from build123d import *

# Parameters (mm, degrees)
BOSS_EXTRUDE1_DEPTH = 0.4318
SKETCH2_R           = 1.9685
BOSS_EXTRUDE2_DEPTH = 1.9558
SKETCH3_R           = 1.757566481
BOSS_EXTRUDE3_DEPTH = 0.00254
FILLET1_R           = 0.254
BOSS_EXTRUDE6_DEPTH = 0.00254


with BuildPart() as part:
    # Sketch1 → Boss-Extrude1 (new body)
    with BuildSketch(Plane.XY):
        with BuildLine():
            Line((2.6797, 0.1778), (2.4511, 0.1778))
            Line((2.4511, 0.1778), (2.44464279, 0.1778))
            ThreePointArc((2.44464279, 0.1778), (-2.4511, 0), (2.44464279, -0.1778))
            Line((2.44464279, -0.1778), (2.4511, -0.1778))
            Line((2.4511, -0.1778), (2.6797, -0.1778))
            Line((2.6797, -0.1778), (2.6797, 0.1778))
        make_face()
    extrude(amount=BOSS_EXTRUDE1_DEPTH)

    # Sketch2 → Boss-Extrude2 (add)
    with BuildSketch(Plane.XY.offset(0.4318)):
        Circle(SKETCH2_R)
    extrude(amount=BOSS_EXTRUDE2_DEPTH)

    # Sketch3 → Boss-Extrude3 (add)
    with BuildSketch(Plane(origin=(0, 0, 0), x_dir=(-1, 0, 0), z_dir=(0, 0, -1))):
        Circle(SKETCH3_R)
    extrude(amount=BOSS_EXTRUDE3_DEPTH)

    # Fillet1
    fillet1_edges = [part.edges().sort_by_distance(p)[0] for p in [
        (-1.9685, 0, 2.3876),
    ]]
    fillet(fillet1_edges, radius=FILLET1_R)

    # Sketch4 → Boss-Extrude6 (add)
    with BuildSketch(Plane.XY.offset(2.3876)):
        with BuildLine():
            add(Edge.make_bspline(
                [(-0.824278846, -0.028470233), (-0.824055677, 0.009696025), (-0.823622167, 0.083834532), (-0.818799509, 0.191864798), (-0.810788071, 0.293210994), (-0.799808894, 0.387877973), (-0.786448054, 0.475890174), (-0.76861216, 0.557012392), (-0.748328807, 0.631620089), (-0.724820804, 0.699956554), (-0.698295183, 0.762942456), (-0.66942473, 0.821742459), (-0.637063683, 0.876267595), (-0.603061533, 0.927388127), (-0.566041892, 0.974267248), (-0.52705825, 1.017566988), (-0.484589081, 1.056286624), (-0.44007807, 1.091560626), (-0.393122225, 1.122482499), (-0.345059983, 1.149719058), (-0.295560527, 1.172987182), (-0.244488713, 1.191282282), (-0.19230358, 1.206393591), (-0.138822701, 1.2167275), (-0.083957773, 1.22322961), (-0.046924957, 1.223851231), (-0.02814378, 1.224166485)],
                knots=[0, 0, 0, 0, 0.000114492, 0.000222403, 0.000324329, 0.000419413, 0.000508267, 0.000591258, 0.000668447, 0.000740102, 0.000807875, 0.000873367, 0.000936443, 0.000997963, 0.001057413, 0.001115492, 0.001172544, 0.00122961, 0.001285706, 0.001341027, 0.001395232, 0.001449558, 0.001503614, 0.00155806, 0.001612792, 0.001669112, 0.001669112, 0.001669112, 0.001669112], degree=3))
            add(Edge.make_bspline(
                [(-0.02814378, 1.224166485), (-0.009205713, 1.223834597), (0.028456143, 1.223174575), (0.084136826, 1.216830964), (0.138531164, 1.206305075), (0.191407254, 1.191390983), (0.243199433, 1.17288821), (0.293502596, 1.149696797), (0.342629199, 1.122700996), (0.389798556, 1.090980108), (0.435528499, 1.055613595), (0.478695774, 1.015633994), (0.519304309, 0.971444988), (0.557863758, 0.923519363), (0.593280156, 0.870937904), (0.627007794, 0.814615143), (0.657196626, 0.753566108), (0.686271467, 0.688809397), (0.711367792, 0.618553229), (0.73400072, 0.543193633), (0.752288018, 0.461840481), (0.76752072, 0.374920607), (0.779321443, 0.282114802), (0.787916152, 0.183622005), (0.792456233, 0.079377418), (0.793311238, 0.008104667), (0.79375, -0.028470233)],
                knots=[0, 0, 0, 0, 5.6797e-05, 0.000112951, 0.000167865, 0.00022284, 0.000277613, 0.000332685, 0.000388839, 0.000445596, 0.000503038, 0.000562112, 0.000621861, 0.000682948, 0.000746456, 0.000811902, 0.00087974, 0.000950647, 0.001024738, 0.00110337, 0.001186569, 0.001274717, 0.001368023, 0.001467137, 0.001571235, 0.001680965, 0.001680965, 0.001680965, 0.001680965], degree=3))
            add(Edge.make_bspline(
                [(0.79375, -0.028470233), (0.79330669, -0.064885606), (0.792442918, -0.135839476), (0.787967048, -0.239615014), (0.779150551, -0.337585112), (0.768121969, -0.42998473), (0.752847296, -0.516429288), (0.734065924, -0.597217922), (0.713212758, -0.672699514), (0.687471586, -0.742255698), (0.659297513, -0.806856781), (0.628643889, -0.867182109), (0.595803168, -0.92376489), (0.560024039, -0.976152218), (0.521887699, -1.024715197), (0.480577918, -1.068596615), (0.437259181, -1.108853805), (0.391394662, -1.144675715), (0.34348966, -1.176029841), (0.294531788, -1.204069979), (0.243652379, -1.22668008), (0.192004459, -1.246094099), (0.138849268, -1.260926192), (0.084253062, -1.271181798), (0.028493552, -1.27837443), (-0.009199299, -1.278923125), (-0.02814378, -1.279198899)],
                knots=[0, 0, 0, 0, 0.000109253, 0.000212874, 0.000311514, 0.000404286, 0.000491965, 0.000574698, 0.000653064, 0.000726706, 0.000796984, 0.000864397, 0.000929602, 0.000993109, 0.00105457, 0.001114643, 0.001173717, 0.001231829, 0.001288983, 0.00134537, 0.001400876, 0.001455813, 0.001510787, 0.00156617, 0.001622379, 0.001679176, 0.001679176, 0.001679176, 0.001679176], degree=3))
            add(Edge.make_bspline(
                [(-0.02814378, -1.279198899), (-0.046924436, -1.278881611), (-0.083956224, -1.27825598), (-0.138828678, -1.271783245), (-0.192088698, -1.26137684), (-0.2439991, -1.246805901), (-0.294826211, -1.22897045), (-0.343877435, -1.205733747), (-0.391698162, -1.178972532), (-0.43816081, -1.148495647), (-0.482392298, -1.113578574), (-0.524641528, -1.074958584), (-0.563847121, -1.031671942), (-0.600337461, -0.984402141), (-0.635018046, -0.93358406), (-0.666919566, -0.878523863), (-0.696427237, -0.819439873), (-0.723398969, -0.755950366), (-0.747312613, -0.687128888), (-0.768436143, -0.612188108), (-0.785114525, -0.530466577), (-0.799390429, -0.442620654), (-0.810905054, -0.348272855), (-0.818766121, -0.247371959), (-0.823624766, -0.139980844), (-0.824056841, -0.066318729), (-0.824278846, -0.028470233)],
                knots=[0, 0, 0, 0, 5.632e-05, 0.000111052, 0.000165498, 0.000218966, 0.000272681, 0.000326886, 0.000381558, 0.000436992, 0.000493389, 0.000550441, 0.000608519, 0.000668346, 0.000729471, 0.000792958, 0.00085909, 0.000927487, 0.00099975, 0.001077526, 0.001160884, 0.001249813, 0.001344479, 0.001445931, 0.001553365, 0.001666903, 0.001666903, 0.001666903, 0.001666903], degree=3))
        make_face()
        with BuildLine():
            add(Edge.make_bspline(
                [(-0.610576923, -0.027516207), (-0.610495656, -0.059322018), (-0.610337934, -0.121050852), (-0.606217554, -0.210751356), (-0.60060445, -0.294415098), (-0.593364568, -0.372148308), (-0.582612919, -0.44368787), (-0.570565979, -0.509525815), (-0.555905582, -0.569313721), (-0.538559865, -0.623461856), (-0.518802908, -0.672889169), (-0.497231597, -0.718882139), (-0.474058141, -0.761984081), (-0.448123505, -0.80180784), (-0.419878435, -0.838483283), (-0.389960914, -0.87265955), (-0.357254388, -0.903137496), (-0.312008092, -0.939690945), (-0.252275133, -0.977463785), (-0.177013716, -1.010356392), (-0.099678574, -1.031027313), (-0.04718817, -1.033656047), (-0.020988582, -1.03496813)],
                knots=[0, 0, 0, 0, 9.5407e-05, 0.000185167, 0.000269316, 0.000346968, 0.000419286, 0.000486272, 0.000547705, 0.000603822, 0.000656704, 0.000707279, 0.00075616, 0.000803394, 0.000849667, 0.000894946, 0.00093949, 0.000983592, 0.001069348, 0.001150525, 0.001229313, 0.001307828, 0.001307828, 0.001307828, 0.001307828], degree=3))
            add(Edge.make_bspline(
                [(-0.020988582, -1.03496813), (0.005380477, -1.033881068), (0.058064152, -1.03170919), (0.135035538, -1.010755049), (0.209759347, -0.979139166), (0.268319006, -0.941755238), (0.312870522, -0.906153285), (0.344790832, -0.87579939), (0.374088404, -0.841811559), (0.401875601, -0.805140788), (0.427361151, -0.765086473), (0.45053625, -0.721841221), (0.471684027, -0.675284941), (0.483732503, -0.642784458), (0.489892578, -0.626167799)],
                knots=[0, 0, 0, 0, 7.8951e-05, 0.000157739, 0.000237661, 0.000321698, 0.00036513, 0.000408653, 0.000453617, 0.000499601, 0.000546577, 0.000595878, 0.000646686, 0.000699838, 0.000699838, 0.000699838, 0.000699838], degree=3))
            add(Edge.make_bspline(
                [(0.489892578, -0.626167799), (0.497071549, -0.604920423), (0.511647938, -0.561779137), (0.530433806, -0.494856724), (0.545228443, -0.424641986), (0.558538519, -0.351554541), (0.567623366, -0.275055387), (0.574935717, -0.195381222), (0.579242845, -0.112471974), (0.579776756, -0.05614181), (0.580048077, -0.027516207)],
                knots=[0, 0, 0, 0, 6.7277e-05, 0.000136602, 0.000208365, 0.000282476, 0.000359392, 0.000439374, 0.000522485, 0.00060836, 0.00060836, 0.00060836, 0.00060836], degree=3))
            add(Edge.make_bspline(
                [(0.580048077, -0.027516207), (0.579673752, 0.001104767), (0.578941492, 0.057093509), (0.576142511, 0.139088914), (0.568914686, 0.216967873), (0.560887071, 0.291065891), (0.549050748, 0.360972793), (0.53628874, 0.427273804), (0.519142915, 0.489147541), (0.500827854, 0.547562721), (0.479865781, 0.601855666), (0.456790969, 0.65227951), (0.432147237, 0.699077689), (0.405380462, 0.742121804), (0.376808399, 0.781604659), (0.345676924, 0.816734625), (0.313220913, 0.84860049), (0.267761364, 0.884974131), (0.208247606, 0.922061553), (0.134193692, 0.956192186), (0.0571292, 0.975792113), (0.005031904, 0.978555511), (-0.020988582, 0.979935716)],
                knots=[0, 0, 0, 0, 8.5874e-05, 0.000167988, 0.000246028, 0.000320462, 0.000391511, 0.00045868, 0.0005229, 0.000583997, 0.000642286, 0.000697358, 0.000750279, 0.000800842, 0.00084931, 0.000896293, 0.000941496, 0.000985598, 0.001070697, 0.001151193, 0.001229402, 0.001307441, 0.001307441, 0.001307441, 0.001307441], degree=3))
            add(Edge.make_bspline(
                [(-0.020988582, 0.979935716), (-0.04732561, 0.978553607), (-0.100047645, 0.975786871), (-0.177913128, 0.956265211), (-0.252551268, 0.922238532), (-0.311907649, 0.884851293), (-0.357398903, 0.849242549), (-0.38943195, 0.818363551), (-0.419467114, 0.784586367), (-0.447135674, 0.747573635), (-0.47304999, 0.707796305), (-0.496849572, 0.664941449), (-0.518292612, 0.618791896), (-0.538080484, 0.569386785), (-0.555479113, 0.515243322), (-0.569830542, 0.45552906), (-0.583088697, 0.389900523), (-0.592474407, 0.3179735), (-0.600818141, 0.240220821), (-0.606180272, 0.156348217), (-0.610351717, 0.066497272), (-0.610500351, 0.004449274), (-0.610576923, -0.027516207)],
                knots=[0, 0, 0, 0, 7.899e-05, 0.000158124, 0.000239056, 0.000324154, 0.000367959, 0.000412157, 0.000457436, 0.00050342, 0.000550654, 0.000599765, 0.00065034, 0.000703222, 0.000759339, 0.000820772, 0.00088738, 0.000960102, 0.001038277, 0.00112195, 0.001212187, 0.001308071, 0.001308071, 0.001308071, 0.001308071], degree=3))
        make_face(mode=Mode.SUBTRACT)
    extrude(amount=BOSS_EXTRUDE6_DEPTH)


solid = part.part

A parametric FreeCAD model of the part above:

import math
import FreeCAD as App
import Part
import Sketcher
Q = App.Units.Quantity


def edges_at(feature, points):
    """Names of the edges that pass closest to the given points."""
    edges = feature.Shape.Edges
    near = lambda p: min(range(len(edges)), key=lambda i: edges[i].distToShape(Part.Vertex(*p))[0])
    return sorted({f"Edge{near(p) + 1}" for p in points})

doc = App.newDocument("Part")
params = doc.addObject("Spreadsheet::Sheet", "Params")
for row, (alias, value) in enumerate([
    ("sketch1_height", "0.014 in"),
    ("pad1_length", "0.017 in"),
    ("sketch2_diameter", "0.155 in"),
    ("pad2_length", "0.077 in"),
    ("pad3_length", "0.0001 in"),
    ("fillet_radius", "0.01 in"),
    ("pad4_length", "0.0001 in"),
], start=1):
    params.set(f"A{row}", alias)
    params.set(f"B{row}", "=" + value)
    params.setAlias(f"B{row}", alias)

body = doc.addObject("PartDesign::Body", "Body")

sketch1 = body.newObject("Sketcher::SketchObject", "Sketch")
sketch1.AttachmentSupport = (doc.getObject("XY_Plane"), [""])
sketch1.MapMode = "FlatFace"
sketch1.addGeometry(Part.LineSegment(App.Vector(2.68, 0.18, 0), App.Vector(2.44, 0.18, 0)), False)
sketch1.addGeometry(Part.ArcOfCircle(Part.Circle(App.Vector(0, 0, 0), App.Vector(0, 0, 1), 2.45), math.radians(4), math.radians(356)), False)
sketch1.addGeometry(Part.LineSegment(App.Vector(2.44, -0.18, 0), App.Vector(2.68, -0.18, 0)), False)
sketch1.addGeometry(Part.LineSegment(App.Vector(2.68, -0.18, 0), App.Vector(2.68, 0.18, 0)), False)
sketch1.addConstraint(Sketcher.Constraint("Coincident", 0, 2, 1, 1))
sketch1.addConstraint(Sketcher.Constraint("Coincident", 1, 2, 2, 1))
sketch1.addConstraint(Sketcher.Constraint("Coincident", 2, 2, 3, 1))
sketch1.addConstraint(Sketcher.Constraint("Coincident", 3, 2, 0, 1))
sketch1.addConstraint(Sketcher.Constraint("Horizontal", 0))
sketch1.addConstraint(Sketcher.Constraint("Horizontal", 2))
sketch1.addConstraint(Sketcher.Constraint("Vertical", 3))
sketch1.addConstraint(Sketcher.Constraint("Coincident", 1, 3, -1, 1))
sketch1.addConstraint(Sketcher.Constraint("Vertical", 0, 2, 1, 2))
sketch1.addConstraint(Sketcher.Constraint("Radius", 1, Q("0.0965 in")))
sketch1.addConstraint(Sketcher.Constraint("DistanceY", 3, 1, 3, 2, Q("0.014 in")))
sketch1.addConstraint(Sketcher.Constraint("DistanceX", -1, 1, 2, 2, Q("0.1055 in")))
sketch1.setExpression("Constraints[10]", "Params.sketch1_height")
pad1 = body.newObject("PartDesign::Pad", "Pad")
pad1.Profile = sketch1
pad1.setExpression("Length", "Params.pad1_length")

sketch2 = body.newObject("Sketcher::SketchObject", "Sketch001")
sketch2.AttachmentSupport = (doc.getObject("XY_Plane"), [""])
sketch2.MapMode = "FlatFace"
sketch2.AttachmentOffset = App.Placement(App.Vector(0, 0, 0.017 * 25.4), App.Rotation())
sketch2.addGeometry(Part.Circle(App.Vector(0, 0, 0), App.Vector(0, 0, 1), 2), False)
sketch2.addConstraint(Sketcher.Constraint("Coincident", 0, 3, -1, 1))
sketch2.addConstraint(Sketcher.Constraint("Diameter", 0, Q("0.155 in")))
sketch2.setExpression("Constraints[1]", "Params.sketch2_diameter")
pad2 = body.newObject("PartDesign::Pad", "Pad001")
pad2.Profile = sketch2
pad2.setExpression("Length", "Params.pad2_length")

sketch3 = body.newObject("Sketcher::SketchObject", "Sketch002")
sketch3.AttachmentSupport = (doc.getObject("XY_Plane"), [""])
sketch3.MapMode = "FlatFace"
sketch3.addGeometry(Part.Circle(App.Vector(0, 0, 0), App.Vector(0, 0, 1), 1.8), False)
sketch3.addConstraint(Sketcher.Constraint("Coincident", 0, 3, -1, 1))
sketch3.addConstraint(Sketcher.Constraint("Diameter", 0, Q("3.515133 mm")))
pad3 = body.newObject("PartDesign::Pad", "Pad002")
pad3.Profile = sketch3
pad3.setExpression("Length", "Params.pad3_length")
pad3.Reversed = True
doc.recompute()

fillet = body.newObject("PartDesign::Fillet", "Fillet")
fillet.Base = (pad3, edges_at(pad3, [(-1.968, 0, 2.388)]))
fillet.setExpression("Radius", "Params.fillet_radius")

sketch4 = body.newObject("Sketcher::SketchObject", "Sketch003")
sketch4.AttachmentSupport = (doc.getObject("XY_Plane"), [""])
sketch4.MapMode = "FlatFace"
sketch4.AttachmentOffset = App.Placement(App.Vector(0, 0, 0.094 * 25.4), App.Rotation())
sketch4.addGeometry(Part.BSplineCurve([App.Vector(-0.824279, -0.02847, 0), App.Vector(-0.824056, 0.009696, 0), App.Vector(-0.823622, 0.083835, 0), App.Vector(-0.8188, 0.191865, 0), App.Vector(-0.810788, 0.293211, 0), App.Vector(-0.799809, 0.387878, 0), App.Vector(-0.786448, 0.47589, 0), App.Vector(-0.768612, 0.557012, 0), App.Vector(-0.748329, 0.63162, 0), App.Vector(-0.724821, 0.699957, 0), App.Vector(-0.698295, 0.762942, 0), App.Vector(-0.669425, 0.821742, 0), App.Vector(-0.637064, 0.876268, 0), App.Vector(-0.603062, 0.927388, 0), App.Vector(-0.566042, 0.974267, 0), App.Vector(-0.527058, 1.017567, 0), App.Vector(-0.484589, 1.056287, 0), App.Vector(-0.440078, 1.091561, 0), App.Vector(-0.393122, 1.122482, 0), App.Vector(-0.34506, 1.149719, 0), App.Vector(-0.295561, 1.172987, 0), App.Vector(-0.244489, 1.191282, 0), App.Vector(-0.192304, 1.206394, 0), App.Vector(-0.138823, 1.216727, 0), App.Vector(-0.083958, 1.22323, 0), App.Vector(-0.046925, 1.223851, 0), App.Vector(-0.028144, 1.224166, 0)], [4, 1, 1, 1, 1, 1, 1, 1, 1, 1, 1, 1, 1, 1, 1, 1, 1, 1, 1, 1, 1, 1, 1, 1, 4], [0, 0.000114492, 0.000222403, 0.000324329, 0.000419413, 0.000508267, 0.000591258, 0.000668447, 0.000740102, 0.000807875, 0.000873367, 0.000936443, 0.000997963, 0.001057413, 0.001115492, 0.001172544, 0.00122961, 0.001285706, 0.001341027, 0.001395232, 0.001449558, 0.001503614, 0.00155806, 0.001612792, 0.001669112], False, 3, [1, 1, 1, 1, 1, 1, 1, 1, 1, 1, 1, 1, 1, 1, 1, 1, 1, 1, 1, 1, 1, 1, 1, 1, 1, 1, 1], False), False)
sketch4.addGeometry(Part.BSplineCurve([App.Vector(-0.028144, -1.279199, 0), App.Vector(-0.046924, -1.278882, 0), App.Vector(-0.083956, -1.278256, 0), App.Vector(-0.138829, -1.271783, 0), App.Vector(-0.192089, -1.261377, 0), App.Vector(-0.243999, -1.246806, 0), App.Vector(-0.294826, -1.22897, 0), App.Vector(-0.343877, -1.205734, 0), App.Vector(-0.391698, -1.178973, 0), App.Vector(-0.438161, -1.148496, 0), App.Vector(-0.482392, -1.113579, 0), App.Vector(-0.524642, -1.074959, 0), App.Vector(-0.563847, -1.031672, 0), App.Vector(-0.600337, -0.984402, 0), App.Vector(-0.635018, -0.933584, 0), App.Vector(-0.66692, -0.878524, 0), App.Vector(-0.696427, -0.81944, 0), App.Vector(-0.723399, -0.75595, 0), App.Vector(-0.747313, -0.687129, 0), App.Vector(-0.768436, -0.612188, 0), App.Vector(-0.785115, -0.530467, 0), App.Vector(-0.79939, -0.442621, 0), App.Vector(-0.810905, -0.348273, 0), App.Vector(-0.818766, -0.247372, 0), App.Vector(-0.823625, -0.139981, 0), App.Vector(-0.824057, -0.066319, 0), App.Vector(-0.824279, -0.02847, 0)], [4, 1, 1, 1, 1, 1, 1, 1, 1, 1, 1, 1, 1, 1, 1, 1, 1, 1, 1, 1, 1, 1, 1, 1, 4], [0, 0.00005632, 0.000111052, 0.000165498, 0.000218966, 0.000272681, 0.000326886, 0.000381558, 0.000436992, 0.000493389, 0.000550441, 0.000608519, 0.000668346, 0.000729471, 0.000792958, 0.00085909, 0.000927487, 0.00099975, 0.001077526, 0.001160884, 0.001249813, 0.001344479, 0.001445931, 0.001553365, 0.001666903], False, 3, [1, 1, 1, 1, 1, 1, 1, 1, 1, 1, 1, 1, 1, 1, 1, 1, 1, 1, 1, 1, 1, 1, 1, 1, 1, 1, 1], False), False)
sketch4.addGeometry(Part.BSplineCurve([App.Vector(0.79375, -0.02847, 0), App.Vector(0.793307, -0.064886, 0), App.Vector(0.792443, -0.135839, 0), App.Vector(0.787967, -0.239615, 0), App.Vector(0.779151, -0.337585, 0), App.Vector(0.768122, -0.429985, 0), App.Vector(0.752847, -0.516429, 0), App.Vector(0.734066, -0.597218, 0), App.Vector(0.713213, -0.6727, 0), App.Vector(0.687472, -0.742256, 0), App.Vector(0.659298, -0.806857, 0), App.Vector(0.628644, -0.867182, 0), App.Vector(0.595803, -0.923765, 0), App.Vector(0.560024, -0.976152, 0), App.Vector(0.521888, -1.024715, 0), App.Vector(0.480578, -1.068597, 0), App.Vector(0.437259, -1.108854, 0), App.Vector(0.391395, -1.144676, 0), App.Vector(0.34349, -1.17603, 0), App.Vector(0.294532, -1.20407, 0), App.Vector(0.243652, -1.22668, 0), App.Vector(0.192004, -1.246094, 0), App.Vector(0.138849, -1.260926, 0), App.Vector(0.084253, -1.271182, 0), App.Vector(0.028494, -1.278374, 0), App.Vector(-0.009199, -1.278923, 0), App.Vector(-0.028144, -1.279199, 0)], [4, 1, 1, 1, 1, 1, 1, 1, 1, 1, 1, 1, 1, 1, 1, 1, 1, 1, 1, 1, 1, 1, 1, 1, 4], [0, 0.000109253, 0.000212874, 0.000311514, 0.000404286, 0.000491965, 0.000574698, 0.000653064, 0.000726706, 0.000796984, 0.000864397, 0.000929602, 0.000993109, 0.00105457, 0.001114643, 0.001173717, 0.001231829, 0.001288983, 0.00134537, 0.001400876, 0.001455813, 0.001510787, 0.00156617, 0.001622379, 0.001679176], False, 3, [1, 1, 1, 1, 1, 1, 1, 1, 1, 1, 1, 1, 1, 1, 1, 1, 1, 1, 1, 1, 1, 1, 1, 1, 1, 1, 1], False), False)
sketch4.addGeometry(Part.BSplineCurve([App.Vector(-0.028144, 1.224166, 0), App.Vector(-0.009206, 1.223835, 0), App.Vector(0.028456, 1.223175, 0), App.Vector(0.084137, 1.216831, 0), App.Vector(0.138531, 1.206305, 0), App.Vector(0.191407, 1.191391, 0), App.Vector(0.243199, 1.172888, 0), App.Vector(0.293503, 1.149697, 0), App.Vector(0.342629, 1.122701, 0), App.Vector(0.389799, 1.09098, 0), App.Vector(0.435528, 1.055614, 0), App.Vector(0.478696, 1.015634, 0), App.Vector(0.519304, 0.971445, 0), App.Vector(0.557864, 0.923519, 0), App.Vector(0.59328, 0.870938, 0), App.Vector(0.627008, 0.814615, 0), App.Vector(0.657197, 0.753566, 0), App.Vector(0.686271, 0.688809, 0), App.Vector(0.711368, 0.618553, 0), App.Vector(0.734001, 0.543194, 0), App.Vector(0.752288, 0.46184, 0), App.Vector(0.767521, 0.374921, 0), App.Vector(0.779321, 0.282115, 0), App.Vector(0.787916, 0.183622, 0), App.Vector(0.792456, 0.079377, 0), App.Vector(0.793311, 0.008105, 0), App.Vector(0.79375, -0.02847, 0)], [4, 1, 1, 1, 1, 1, 1, 1, 1, 1, 1, 1, 1, 1, 1, 1, 1, 1, 1, 1, 1, 1, 1, 1, 4], [0, 0.000056797, 0.000112951, 0.000167865, 0.00022284, 0.000277613, 0.000332685, 0.000388839, 0.000445596, 0.000503038, 0.000562112, 0.000621861, 0.000682948, 0.000746456, 0.000811902, 0.00087974, 0.000950647, 0.001024738, 0.00110337, 0.001186569, 0.001274717, 0.001368023, 0.001467137, 0.001571235, 0.001680965], False, 3, [1, 1, 1, 1, 1, 1, 1, 1, 1, 1, 1, 1, 1, 1, 1, 1, 1, 1, 1, 1, 1, 1, 1, 1, 1, 1, 1], False), False)
sketch4.addGeometry(Part.BSplineCurve([App.Vector(-0.020989, 0.979936, 0), App.Vector(-0.047326, 0.978554, 0), App.Vector(-0.100048, 0.975787, 0), App.Vector(-0.177913, 0.956265, 0), App.Vector(-0.252551, 0.922239, 0), App.Vector(-0.311908, 0.884851, 0), App.Vector(-0.357399, 0.849243, 0), App.Vector(-0.389432, 0.818364, 0), App.Vector(-0.419467, 0.784586, 0), App.Vector(-0.447136, 0.747574, 0), App.Vector(-0.47305, 0.707796, 0), App.Vector(-0.49685, 0.664941, 0), App.Vector(-0.518293, 0.618792, 0), App.Vector(-0.53808, 0.569387, 0), App.Vector(-0.555479, 0.515243, 0), App.Vector(-0.569831, 0.455529, 0), App.Vector(-0.583089, 0.389901, 0), App.Vector(-0.592474, 0.317974, 0), App.Vector(-0.600818, 0.240221, 0), App.Vector(-0.60618, 0.156348, 0), App.Vector(-0.610352, 0.066497, 0), App.Vector(-0.6105, 0.004449, 0), App.Vector(-0.610577, -0.027516, 0)], [4, 1, 1, 1, 1, 1, 1, 1, 1, 1, 1, 1, 1, 1, 1, 1, 1, 1, 1, 1, 4], [0, 0.00007899, 0.000158124, 0.000239056, 0.000324154, 0.000367959, 0.000412157, 0.000457436, 0.00050342, 0.000550654, 0.000599765, 0.00065034, 0.000703222, 0.000759339, 0.000820772, 0.00088738, 0.000960102, 0.001038277, 0.00112195, 0.001212187, 0.001308071], False, 3, [1, 1, 1, 1, 1, 1, 1, 1, 1, 1, 1, 1, 1, 1, 1, 1, 1, 1, 1, 1, 1, 1, 1], False), False)
sketch4.addGeometry(Part.BSplineCurve([App.Vector(0.580048, -0.027516, 0), App.Vector(0.579674, 0.001105, 0), App.Vector(0.578941, 0.057094, 0), App.Vector(0.576143, 0.139089, 0), App.Vector(0.568915, 0.216968, 0), App.Vector(0.560887, 0.291066, 0), App.Vector(0.549051, 0.360973, 0), App.Vector(0.536289, 0.427274, 0), App.Vector(0.519143, 0.489148, 0), App.Vector(0.500828, 0.547563, 0), App.Vector(0.479866, 0.601856, 0), App.Vector(0.456791, 0.65228, 0), App.Vector(0.432147, 0.699078, 0), App.Vector(0.40538, 0.742122, 0), App.Vector(0.376808, 0.781605, 0), App.Vector(0.345677, 0.816735, 0), App.Vector(0.313221, 0.8486, 0), App.Vector(0.267761, 0.884974, 0), App.Vector(0.208248, 0.922062, 0), App.Vector(0.134194, 0.956192, 0), App.Vector(0.057129, 0.975792, 0), App.Vector(0.005032, 0.978556, 0), App.Vector(-0.020989, 0.979936, 0)], [4, 1, 1, 1, 1, 1, 1, 1, 1, 1, 1, 1, 1, 1, 1, 1, 1, 1, 1, 1, 4], [0, 0.000085874, 0.000167988, 0.000246028, 0.000320462, 0.000391511, 0.00045868, 0.0005229, 0.000583997, 0.000642286, 0.000697358, 0.000750279, 0.000800842, 0.00084931, 0.000896293, 0.000941496, 0.000985598, 0.001070697, 0.001151193, 0.001229402, 0.001307441], False, 3, [1, 1, 1, 1, 1, 1, 1, 1, 1, 1, 1, 1, 1, 1, 1, 1, 1, 1, 1, 1, 1, 1, 1], False), False)
sketch4.addGeometry(Part.BSplineCurve([App.Vector(0.489893, -0.626168, 0), App.Vector(0.497072, -0.60492, 0), App.Vector(0.511648, -0.561779, 0), App.Vector(0.530434, -0.494857, 0), App.Vector(0.545228, -0.424642, 0), App.Vector(0.558539, -0.351555, 0), App.Vector(0.567623, -0.275055, 0), App.Vector(0.574936, -0.195381, 0), App.Vector(0.579243, -0.112472, 0), App.Vector(0.579777, -0.056142, 0), App.Vector(0.580048, -0.027516, 0)], [4, 1, 1, 1, 1, 1, 1, 1, 4], [0, 0.000067277, 0.000136602, 0.000208365, 0.000282476, 0.000359392, 0.000439374, 0.000522485, 0.00060836], False, 3, [1, 1, 1, 1, 1, 1, 1, 1, 1, 1, 1], False), False)
sketch4.addGeometry(Part.BSplineCurve([App.Vector(-0.020989, -1.034968, 0), App.Vector(0.00538, -1.033881, 0), App.Vector(0.058064, -1.031709, 0), App.Vector(0.135036, -1.010755, 0), App.Vector(0.209759, -0.979139, 0), App.Vector(0.268319, -0.941755, 0), App.Vector(0.312871, -0.906153, 0), App.Vector(0.344791, -0.875799, 0), App.Vector(0.374088, -0.841812, 0), App.Vector(0.401876, -0.805141, 0), App.Vector(0.427361, -0.765086, 0), App.Vector(0.450536, -0.721841, 0), App.Vector(0.471684, -0.675285, 0), App.Vector(0.483733, -0.642784, 0), App.Vector(0.489893, -0.626168, 0)], [4, 1, 1, 1, 1, 1, 1, 1, 1, 1, 1, 1, 4], [0, 0.000078951, 0.000157739, 0.000237661, 0.000321698, 0.00036513, 0.000408653, 0.000453617, 0.000499601, 0.000546577, 0.000595878, 0.000646686, 0.000699838], False, 3, [1, 1, 1, 1, 1, 1, 1, 1, 1, 1, 1, 1, 1, 1, 1], False), False)
sketch4.addGeometry(Part.BSplineCurve([App.Vector(-0.610577, -0.027516, 0), App.Vector(-0.610496, -0.059322, 0), App.Vector(-0.610338, -0.121051, 0), App.Vector(-0.606218, -0.210751, 0), App.Vector(-0.600604, -0.294415, 0), App.Vector(-0.593365, -0.372148, 0), App.Vector(-0.582613, -0.443688, 0), App.Vector(-0.570566, -0.509526, 0), App.Vector(-0.555906, -0.569314, 0), App.Vector(-0.53856, -0.623462, 0), App.Vector(-0.518803, -0.672889, 0), App.Vector(-0.497232, -0.718882, 0), App.Vector(-0.474058, -0.761984, 0), App.Vector(-0.448124, -0.801808, 0), App.Vector(-0.419878, -0.838483, 0), App.Vector(-0.389961, -0.87266, 0), App.Vector(-0.357254, -0.903137, 0), App.Vector(-0.312008, -0.939691, 0), App.Vector(-0.252275, -0.977464, 0), App.Vector(-0.177014, -1.010356, 0), App.Vector(-0.099679, -1.031027, 0), App.Vector(-0.047188, -1.033656, 0), App.Vector(-0.020989, -1.034968, 0)], [4, 1, 1, 1, 1, 1, 1, 1, 1, 1, 1, 1, 1, 1, 1, 1, 1, 1, 1, 1, 4], [0, 0.000095407, 0.000185167, 0.000269316, 0.000346968, 0.000419286, 0.000486272, 0.000547705, 0.000603822, 0.000656704, 0.000707279, 0.00075616, 0.000803394, 0.000849667, 0.000894946, 0.00093949, 0.000983592, 0.001069348, 0.001150525, 0.001229313, 0.001307828], False, 3, [1, 1, 1, 1, 1, 1, 1, 1, 1, 1, 1, 1, 1, 1, 1, 1, 1, 1, 1, 1, 1, 1, 1], False), False)
sketch4.addConstraint(Sketcher.Constraint("Block", 0))
sketch4.addConstraint(Sketcher.Constraint("Block", 1))
sketch4.addConstraint(Sketcher.Constraint("Block", 2))
sketch4.addConstraint(Sketcher.Constraint("Block", 3))
sketch4.addConstraint(Sketcher.Constraint("Block", 4))
sketch4.addConstraint(Sketcher.Constraint("Block", 5))
sketch4.addConstraint(Sketcher.Constraint("Block", 6))
sketch4.addConstraint(Sketcher.Constraint("Block", 7))
sketch4.addConstraint(Sketcher.Constraint("Block", 8))
pad4 = body.newObject("PartDesign::Pad", "Pad003")
pad4.Profile = sketch4
pad4.setExpression("Length", "Params.pad4_length")

doc.recompute()
